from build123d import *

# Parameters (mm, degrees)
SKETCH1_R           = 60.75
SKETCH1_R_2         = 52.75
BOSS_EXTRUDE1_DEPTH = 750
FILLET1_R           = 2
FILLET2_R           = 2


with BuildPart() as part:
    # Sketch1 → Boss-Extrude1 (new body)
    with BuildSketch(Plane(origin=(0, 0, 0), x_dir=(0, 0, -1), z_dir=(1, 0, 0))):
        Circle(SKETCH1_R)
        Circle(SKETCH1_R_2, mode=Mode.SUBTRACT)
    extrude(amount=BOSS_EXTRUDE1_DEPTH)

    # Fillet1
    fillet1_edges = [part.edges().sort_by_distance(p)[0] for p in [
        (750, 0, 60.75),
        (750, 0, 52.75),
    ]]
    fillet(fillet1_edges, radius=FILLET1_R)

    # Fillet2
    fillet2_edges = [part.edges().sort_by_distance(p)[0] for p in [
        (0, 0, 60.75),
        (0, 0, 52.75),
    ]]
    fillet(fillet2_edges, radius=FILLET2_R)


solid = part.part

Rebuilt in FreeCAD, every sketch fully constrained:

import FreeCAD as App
import Part
import Sketcher
from FreeCAD import Vector
Q = App.Units.Quantity


def edges_at(feature, points):
    """Names of the edges that pass closest to the given points."""
    edges = feature.Shape.Edges
    near = lambda p: min(range(len(edges)), key=lambda i: edges[i].distToShape(Part.Vertex(*p))[0])
    return sorted({f"Edge{near(p) + 1}" for p in points})

doc = App.newDocument("Part")
body = doc.addObject("PartDesign::Body", "Body")

sketch1 = body.newObject("Sketcher::SketchObject", "Sketch")
sketch1.AttachmentSupport = (doc.getObject("YZ_Plane"), [""])
sketch1.MapMode = "FlatFace"
sketch1.addGeometry([
    Part.Circle(Vector(0, 0, 0), Vector(0, 0, 1), 61),
    Part.Circle(Vector(0, 0, 0), Vector(0, 0, 1), 53),
], False)
sketch1.addConstraint([
    Sketcher.Constraint("Coincident", 0, 3, -1, 1),
    Sketcher.Constraint("Coincident", 1, 3, -1, 1),
    Sketcher.Constraint("Diameter", 0, Q("121.5 mm")),
    Sketcher.Constraint("Diameter", 1, Q("105.5 mm")),
])
pad1 = body.newObject("PartDesign::Pad", "Pad")
pad1.Profile = sketch1
pad1.Length = 750
doc.recompute()

fillet = body.newObject("PartDesign::Fillet", "Fillet")
fillet.Base = (pad1, edges_at(pad1, [(750, 0, 60.75), (750, 0, 52.75)]))
fillet.Radius = 2
doc.recompute()

fillet2 = body.newObject("PartDesign::Fillet", "Fillet001")
fillet2.Base = (fillet, edges_at(fillet, [(0, 0, 60.75), (0, 0, 52.75)]))
fillet2.Radius = 2

doc.recompute()
